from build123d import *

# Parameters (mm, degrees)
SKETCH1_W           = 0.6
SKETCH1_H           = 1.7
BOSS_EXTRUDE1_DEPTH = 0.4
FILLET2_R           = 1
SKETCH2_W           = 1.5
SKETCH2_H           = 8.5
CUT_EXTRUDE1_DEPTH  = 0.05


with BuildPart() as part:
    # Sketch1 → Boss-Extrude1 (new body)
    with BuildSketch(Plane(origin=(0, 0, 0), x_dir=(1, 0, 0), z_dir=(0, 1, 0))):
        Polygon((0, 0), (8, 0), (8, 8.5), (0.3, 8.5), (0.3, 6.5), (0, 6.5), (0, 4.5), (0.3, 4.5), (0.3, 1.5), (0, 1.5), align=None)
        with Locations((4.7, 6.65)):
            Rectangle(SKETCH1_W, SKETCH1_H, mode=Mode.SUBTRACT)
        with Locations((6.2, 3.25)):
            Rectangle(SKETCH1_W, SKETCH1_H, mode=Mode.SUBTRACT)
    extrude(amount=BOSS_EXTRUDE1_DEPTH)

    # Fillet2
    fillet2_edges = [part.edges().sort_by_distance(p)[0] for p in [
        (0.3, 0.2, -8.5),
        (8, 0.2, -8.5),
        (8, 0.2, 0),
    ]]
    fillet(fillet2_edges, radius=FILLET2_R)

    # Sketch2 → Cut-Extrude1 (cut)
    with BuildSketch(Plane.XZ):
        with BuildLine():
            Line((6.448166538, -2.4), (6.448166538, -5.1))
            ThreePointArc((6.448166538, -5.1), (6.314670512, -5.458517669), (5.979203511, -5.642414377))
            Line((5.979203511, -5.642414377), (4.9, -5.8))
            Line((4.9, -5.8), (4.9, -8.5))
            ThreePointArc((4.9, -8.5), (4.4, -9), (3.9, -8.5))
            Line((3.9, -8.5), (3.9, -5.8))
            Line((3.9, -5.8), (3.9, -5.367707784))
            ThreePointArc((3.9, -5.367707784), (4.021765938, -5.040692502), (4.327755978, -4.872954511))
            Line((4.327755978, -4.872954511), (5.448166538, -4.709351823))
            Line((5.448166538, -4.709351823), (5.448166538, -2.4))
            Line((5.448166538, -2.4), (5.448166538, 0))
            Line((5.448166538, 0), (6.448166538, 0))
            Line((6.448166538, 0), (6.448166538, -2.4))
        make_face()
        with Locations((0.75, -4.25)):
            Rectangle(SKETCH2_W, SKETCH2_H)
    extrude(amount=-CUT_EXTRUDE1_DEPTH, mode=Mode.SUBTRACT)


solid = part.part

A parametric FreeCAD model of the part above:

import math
import FreeCAD as App
import Part
import Sketcher

V = App.Vector


def edges_at(feature, points):
    """Names of the edges that pass closest to the given points."""
    edges = feature.Shape.Edges
    near = lambda p: min(range(len(edges)), key=lambda i: edges[i].distToShape(Part.Vertex(*p))[0])
    return sorted({f"Edge{near(p) + 1}" for p in points})


def add_polygon(sketch, points):
    """Adds a closed chain of lines whose ends are joined by coincident constraints."""
    first, n = sketch.GeometryCount, len(points)
    for a, b in zip(points, points[1:] + points[:1]):
        sketch.addGeometry(Part.LineSegment(App.Vector(*a, 0), App.Vector(*b, 0)), False)
    for i in range(n):
        sketch.addConstraint(Sketcher.Constraint("Coincident", first + i, 2, first + (i + 1) % n, 1))

doc = App.newDocument("Part")
body = doc.addObject("PartDesign::Body", "Body")

sketch1 = body.newObject("Sketcher::SketchObject", "Sketch")
sketch1.AttachmentSupport = (doc.getObject("XZ_Plane"), [""])
sketch1.MapMode = "FlatFace"
add_polygon(sketch1, [(0, 0), (8, 0), (8, -8.5), (0.3, -8.5), (0.3, -6.5), (0, -6.5), (0, -4.5), (0.3, -4.5), (0.3, -1.5), (0, -1.5)])
add_polygon(sketch1, [(6.5, -2.4), (5.9, -2.4), (5.9, -4.1), (6.5, -4.1)])
add_polygon(sketch1, [(5, -5.8), (4.4, -5.8), (4.4, -7.5), (5, -7.5)])
sketch1.addConstraint([
    Sketcher.Constraint("Horizontal", 0),
    Sketcher.Constraint("Vertical", 1),
    Sketcher.Constraint("Horizontal", 2),
    Sketcher.Constraint("Vertical", 3),
    Sketcher.Constraint("Horizontal", 4),
    Sketcher.Constraint("Vertical", 5),
    Sketcher.Constraint("Horizontal", 6),
    Sketcher.Constraint("Vertical", 7),
    Sketcher.Constraint("Horizontal", 8),
    Sketcher.Constraint("Vertical", 9),
    Sketcher.Constraint("Horizontal", 10),
    Sketcher.Constraint("Vertical", 11),
    Sketcher.Constraint("Horizontal", 12),
    Sketcher.Constraint("Vertical", 13),
    Sketcher.Constraint("Horizontal", 14),
    Sketcher.Constraint("Vertical", 15),
    Sketcher.Constraint("Horizontal", 16),
    Sketcher.Constraint("Vertical", 17),
    Sketcher.Constraint("Coincident", 9, 2, -1, 1),
    Sketcher.Constraint("PointOnObject", 4, 2, -2),
    Sketcher.Constraint("Vertical", 3, 2, 6, 2),
    Sketcher.Constraint("Equal", 12, 14),
    Sketcher.Constraint("Equal", 3, 5),
    Sketcher.Constraint("Equal", 13, 15),
    Sketcher.Constraint("DistanceX", 0, 1, 0, 2, 8.0),
    Sketcher.Constraint("DistanceY", 3, 1, 3, 2, 2.0),
    Sketcher.Constraint("DistanceY", 7, 1, 7, 2, 3.0),
    Sketcher.Constraint("DistanceX", 2, 2, 2, 1, 7.7),
    Sketcher.Constraint("DistanceX", 10, 2, 10, 1, 0.6),
    Sketcher.Constraint("DistanceY", 1, 2, 1, 1, 8.5),
    Sketcher.Constraint("DistanceY", 11, 2, 11, 1, 1.7),
    Sketcher.Constraint("DistanceX", -1, 1, 16, 2, 5.0),
    Sketcher.Constraint("DistanceY", 1, 2, 15, 2, 1.0),
    Sketcher.Constraint("DistanceX", -1, 1, 10, 2, 5.9),
    Sketcher.Constraint("DistanceY", 10, 2, -1, 1, 2.4),
])
pad1 = body.newObject("PartDesign::Pad", "Pad")
pad1.Profile = sketch1
pad1.Length = 0.4
pad1.Reversed = True
doc.recompute()

fillet = body.newObject("PartDesign::Fillet", "Fillet")
fillet.Base = (pad1, edges_at(pad1, [(0.3, 0.2, -8.5), (8, 0.2, -8.5), (8, 0.2, 0)]))
fillet.Radius = 1

sketch2 = body.newObject("Sketcher::SketchObject", "Sketch001")
sketch2.AttachmentSupport = (doc.getObject("XZ_Plane"), [""])
sketch2.MapMode = "FlatFace"
sketch2.addGeometry(Part.ArcOfCircle(Part.Circle(V(5.9, -5.1, 0), V(0, 0, 1), 0.55), math.radians(-82), math.radians(0)), False)
sketch2.addGeometry(Part.LineSegment(V(6.45, -5.1, 0), V(6.45, 0, 0)), False)
sketch2.addGeometry(Part.LineSegment(V(6.45, 0, 0), V(5.45, 0, 0)), False)
sketch2.addGeometry(Part.LineSegment(V(5.45, 0, 0), V(5.45, -4.71, 0)), False)
sketch2.addGeometry(Part.LineSegment(V(5.45, -4.71, 0), V(4.33, -4.87, 0)), False)
sketch2.addGeometry(Part.ArcOfCircle(Part.Circle(V(4.4, -5.37, 0), V(0, 0, 1), 0.5), math.radians(98), math.radians(180)), False)
sketch2.addGeometry(Part.LineSegment(V(3.9, -5.37, 0), V(3.9, -8.5, 0)), False)
sketch2.addGeometry(Part.ArcOfCircle(Part.Circle(V(4.4, -8.5, 0), V(0, 0, 1), 0.5), math.radians(180), math.radians(360)), False)
sketch2.addGeometry(Part.LineSegment(V(4.9, -8.5, 0), V(4.9, -5.8, 0)), False)
sketch2.addGeometry(Part.LineSegment(V(4.9, -5.8, 0), V(5.98, -5.64, 0)), False)
add_polygon(sketch2, [(0, 0), (0, -8.5), (1.5, -8.5), (1.5, 0)])
sketch2.addConstraint([
    Sketcher.Constraint("Tangent", 0, 2, 1, 1),
    Sketcher.Constraint("Coincident", 1, 2, 2, 1),
    Sketcher.Constraint("Coincident", 2, 2, 3, 1),
    Sketcher.Constraint("Coincident", 3, 2, 4, 1),
    Sketcher.Constraint("Tangent", 4, 2, 5, 1),
    Sketcher.Constraint("Tangent", 5, 2, 6, 1),
    Sketcher.Constraint("Tangent", 6, 2, 7, 1),
    Sketcher.Constraint("Tangent", 7, 2, 8, 1),
    Sketcher.Constraint("Coincident", 8, 2, 9, 1),
    Sketcher.Constraint("Tangent", 9, 2, 0, 1),
    Sketcher.Constraint("Vertical", 1),
    Sketcher.Constraint("Horizontal", 2),
    Sketcher.Constraint("Vertical", 3),
    Sketcher.Constraint("Vertical", 6),
    Sketcher.Constraint("Vertical", 8),
    Sketcher.Constraint("Vertical", 10),
    Sketcher.Constraint("Horizontal", 11),
    Sketcher.Constraint("Vertical", 12),
    Sketcher.Constraint("Horizontal", 13),
    Sketcher.Constraint("Coincident", 13, 2, -1, 1),
    Sketcher.Constraint("Equal", 5, 7),
    Sketcher.Constraint("PointOnObject", 1, 2, -1),
    Sketcher.Constraint("Parallel", 4, 9),
    Sketcher.Constraint("Horizontal", 7, 2, 10, 2),
    Sketcher.Constraint("Radius", 5, 0.5),
    Sketcher.Constraint("DistanceX", 2, 2, 2, 1, 1.0),
    Sketcher.Constraint("DistanceX", 11, 1, 11, 2, 1.5),
    Sketcher.Constraint("DistanceY", 1, 1, 1, 2, 5.1),
    Sketcher.Constraint("DistanceY", 8, 1, 8, 2, 2.7),
    Sketcher.Constraint("DistanceY", 10, 2, 10, 1, 8.5),
    Sketcher.Constraint("DistanceX", 5, 2, 0, 3, 2.0),
    Sketcher.Constraint("DistanceX", -1, 1, 0, 3, 5.9),
    Sketcher.Constraint("Radius", 0, 0.548167),
    Sketcher.Constraint("DistanceY", 3, 2, 3, 1, 4.709352),
])
pocket1 = body.newObject("PartDesign::Pocket", "Pocket")
pocket1.Profile = sketch2
pocket1.Length = 0.05

doc.recompute()
